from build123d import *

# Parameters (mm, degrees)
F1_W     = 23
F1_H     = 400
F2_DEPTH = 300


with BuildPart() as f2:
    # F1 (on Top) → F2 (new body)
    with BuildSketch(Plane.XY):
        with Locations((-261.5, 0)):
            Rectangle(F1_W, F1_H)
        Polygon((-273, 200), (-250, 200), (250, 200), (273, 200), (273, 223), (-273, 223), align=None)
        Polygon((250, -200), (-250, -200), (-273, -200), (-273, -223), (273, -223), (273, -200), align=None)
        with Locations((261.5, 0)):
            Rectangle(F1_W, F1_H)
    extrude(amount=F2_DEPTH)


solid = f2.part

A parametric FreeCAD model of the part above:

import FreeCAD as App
import Part
import Sketcher
from FreeCAD import Vector

doc = App.newDocument("Part")
body = doc.addObject("PartDesign::Body", "Body")

sketch1 = doc.addObject("Sketcher::SketchObject", "Sketch")
body.addObject(sketch1)
sketch1.AttachmentSupport = (doc.XY_Plane, [""])
sketch1.MapMode = "FlatFace"
sketch1.addGeometry([
    Part.LineSegment(Vector(273, 223, 0), Vector(-273, 223, 0)),
    Part.LineSegment(Vector(-273, 223, 0), Vector(-273, -223, 0)),
    Part.LineSegment(Vector(-273, -223, 0), Vector(273, -223, 0)),
    Part.LineSegment(Vector(273, -223, 0), Vector(273, 223, 0)),
    Part.LineSegment(Vector(-250, -200, 0), Vector(-250, 200, 0)),
    Part.LineSegment(Vector(-250, 200, 0), Vector(250, 200, 0)),
    Part.LineSegment(Vector(250, 200, 0), Vector(250, -200, 0)),
    Part.LineSegment(Vector(250, -200, 0), Vector(-250, -200, 0)),
], False)
sketch1.addConstraint([
    Sketcher.Constraint("Coincident", 0, 2, 1, 1),
    Sketcher.Constraint("Coincident", 1, 2, 2, 1),
    Sketcher.Constraint("Coincident", 2, 2, 3, 1),
    Sketcher.Constraint("Coincident", 3, 2, 0, 1),
    Sketcher.Constraint("Coincident", 4, 2, 5, 1),
    Sketcher.Constraint("Coincident", 5, 2, 6, 1),
    Sketcher.Constraint("Coincident", 6, 2, 7, 1),
    Sketcher.Constraint("Coincident", 7, 2, 4, 1),
    Sketcher.Constraint("Horizontal", 0),
    Sketcher.Constraint("Vertical", 1),
    Sketcher.Constraint("Horizontal", 2),
    Sketcher.Constraint("Vertical", 3),
    Sketcher.Constraint("Vertical", 4),
    Sketcher.Constraint("Horizontal", 5),
    Sketcher.Constraint("Vertical", 6),
    Sketcher.Constraint("Horizontal", 7),
    Sketcher.Constraint("Symmetric", 0, 2, 2, 2, -1, 1),
    Sketcher.Constraint("Symmetric", 4, 2, 6, 2, -1, 1),
    Sketcher.Constraint("DistanceX", 0, 2, 0, 1, 546.0),
    Sketcher.Constraint("DistanceX", 5, 1, 5, 2, 500.0),
    Sketcher.Constraint("DistanceY", 1, 2, 1, 1, 446.0),
    Sketcher.Constraint("DistanceY", 4, 1, 4, 2, 400.0),
])
pad1 = doc.addObject("PartDesign::Pad", "Pad")
body.addObject(pad1)
pad1.Profile = sketch1
pad1.Length = 300

doc.recompute()
